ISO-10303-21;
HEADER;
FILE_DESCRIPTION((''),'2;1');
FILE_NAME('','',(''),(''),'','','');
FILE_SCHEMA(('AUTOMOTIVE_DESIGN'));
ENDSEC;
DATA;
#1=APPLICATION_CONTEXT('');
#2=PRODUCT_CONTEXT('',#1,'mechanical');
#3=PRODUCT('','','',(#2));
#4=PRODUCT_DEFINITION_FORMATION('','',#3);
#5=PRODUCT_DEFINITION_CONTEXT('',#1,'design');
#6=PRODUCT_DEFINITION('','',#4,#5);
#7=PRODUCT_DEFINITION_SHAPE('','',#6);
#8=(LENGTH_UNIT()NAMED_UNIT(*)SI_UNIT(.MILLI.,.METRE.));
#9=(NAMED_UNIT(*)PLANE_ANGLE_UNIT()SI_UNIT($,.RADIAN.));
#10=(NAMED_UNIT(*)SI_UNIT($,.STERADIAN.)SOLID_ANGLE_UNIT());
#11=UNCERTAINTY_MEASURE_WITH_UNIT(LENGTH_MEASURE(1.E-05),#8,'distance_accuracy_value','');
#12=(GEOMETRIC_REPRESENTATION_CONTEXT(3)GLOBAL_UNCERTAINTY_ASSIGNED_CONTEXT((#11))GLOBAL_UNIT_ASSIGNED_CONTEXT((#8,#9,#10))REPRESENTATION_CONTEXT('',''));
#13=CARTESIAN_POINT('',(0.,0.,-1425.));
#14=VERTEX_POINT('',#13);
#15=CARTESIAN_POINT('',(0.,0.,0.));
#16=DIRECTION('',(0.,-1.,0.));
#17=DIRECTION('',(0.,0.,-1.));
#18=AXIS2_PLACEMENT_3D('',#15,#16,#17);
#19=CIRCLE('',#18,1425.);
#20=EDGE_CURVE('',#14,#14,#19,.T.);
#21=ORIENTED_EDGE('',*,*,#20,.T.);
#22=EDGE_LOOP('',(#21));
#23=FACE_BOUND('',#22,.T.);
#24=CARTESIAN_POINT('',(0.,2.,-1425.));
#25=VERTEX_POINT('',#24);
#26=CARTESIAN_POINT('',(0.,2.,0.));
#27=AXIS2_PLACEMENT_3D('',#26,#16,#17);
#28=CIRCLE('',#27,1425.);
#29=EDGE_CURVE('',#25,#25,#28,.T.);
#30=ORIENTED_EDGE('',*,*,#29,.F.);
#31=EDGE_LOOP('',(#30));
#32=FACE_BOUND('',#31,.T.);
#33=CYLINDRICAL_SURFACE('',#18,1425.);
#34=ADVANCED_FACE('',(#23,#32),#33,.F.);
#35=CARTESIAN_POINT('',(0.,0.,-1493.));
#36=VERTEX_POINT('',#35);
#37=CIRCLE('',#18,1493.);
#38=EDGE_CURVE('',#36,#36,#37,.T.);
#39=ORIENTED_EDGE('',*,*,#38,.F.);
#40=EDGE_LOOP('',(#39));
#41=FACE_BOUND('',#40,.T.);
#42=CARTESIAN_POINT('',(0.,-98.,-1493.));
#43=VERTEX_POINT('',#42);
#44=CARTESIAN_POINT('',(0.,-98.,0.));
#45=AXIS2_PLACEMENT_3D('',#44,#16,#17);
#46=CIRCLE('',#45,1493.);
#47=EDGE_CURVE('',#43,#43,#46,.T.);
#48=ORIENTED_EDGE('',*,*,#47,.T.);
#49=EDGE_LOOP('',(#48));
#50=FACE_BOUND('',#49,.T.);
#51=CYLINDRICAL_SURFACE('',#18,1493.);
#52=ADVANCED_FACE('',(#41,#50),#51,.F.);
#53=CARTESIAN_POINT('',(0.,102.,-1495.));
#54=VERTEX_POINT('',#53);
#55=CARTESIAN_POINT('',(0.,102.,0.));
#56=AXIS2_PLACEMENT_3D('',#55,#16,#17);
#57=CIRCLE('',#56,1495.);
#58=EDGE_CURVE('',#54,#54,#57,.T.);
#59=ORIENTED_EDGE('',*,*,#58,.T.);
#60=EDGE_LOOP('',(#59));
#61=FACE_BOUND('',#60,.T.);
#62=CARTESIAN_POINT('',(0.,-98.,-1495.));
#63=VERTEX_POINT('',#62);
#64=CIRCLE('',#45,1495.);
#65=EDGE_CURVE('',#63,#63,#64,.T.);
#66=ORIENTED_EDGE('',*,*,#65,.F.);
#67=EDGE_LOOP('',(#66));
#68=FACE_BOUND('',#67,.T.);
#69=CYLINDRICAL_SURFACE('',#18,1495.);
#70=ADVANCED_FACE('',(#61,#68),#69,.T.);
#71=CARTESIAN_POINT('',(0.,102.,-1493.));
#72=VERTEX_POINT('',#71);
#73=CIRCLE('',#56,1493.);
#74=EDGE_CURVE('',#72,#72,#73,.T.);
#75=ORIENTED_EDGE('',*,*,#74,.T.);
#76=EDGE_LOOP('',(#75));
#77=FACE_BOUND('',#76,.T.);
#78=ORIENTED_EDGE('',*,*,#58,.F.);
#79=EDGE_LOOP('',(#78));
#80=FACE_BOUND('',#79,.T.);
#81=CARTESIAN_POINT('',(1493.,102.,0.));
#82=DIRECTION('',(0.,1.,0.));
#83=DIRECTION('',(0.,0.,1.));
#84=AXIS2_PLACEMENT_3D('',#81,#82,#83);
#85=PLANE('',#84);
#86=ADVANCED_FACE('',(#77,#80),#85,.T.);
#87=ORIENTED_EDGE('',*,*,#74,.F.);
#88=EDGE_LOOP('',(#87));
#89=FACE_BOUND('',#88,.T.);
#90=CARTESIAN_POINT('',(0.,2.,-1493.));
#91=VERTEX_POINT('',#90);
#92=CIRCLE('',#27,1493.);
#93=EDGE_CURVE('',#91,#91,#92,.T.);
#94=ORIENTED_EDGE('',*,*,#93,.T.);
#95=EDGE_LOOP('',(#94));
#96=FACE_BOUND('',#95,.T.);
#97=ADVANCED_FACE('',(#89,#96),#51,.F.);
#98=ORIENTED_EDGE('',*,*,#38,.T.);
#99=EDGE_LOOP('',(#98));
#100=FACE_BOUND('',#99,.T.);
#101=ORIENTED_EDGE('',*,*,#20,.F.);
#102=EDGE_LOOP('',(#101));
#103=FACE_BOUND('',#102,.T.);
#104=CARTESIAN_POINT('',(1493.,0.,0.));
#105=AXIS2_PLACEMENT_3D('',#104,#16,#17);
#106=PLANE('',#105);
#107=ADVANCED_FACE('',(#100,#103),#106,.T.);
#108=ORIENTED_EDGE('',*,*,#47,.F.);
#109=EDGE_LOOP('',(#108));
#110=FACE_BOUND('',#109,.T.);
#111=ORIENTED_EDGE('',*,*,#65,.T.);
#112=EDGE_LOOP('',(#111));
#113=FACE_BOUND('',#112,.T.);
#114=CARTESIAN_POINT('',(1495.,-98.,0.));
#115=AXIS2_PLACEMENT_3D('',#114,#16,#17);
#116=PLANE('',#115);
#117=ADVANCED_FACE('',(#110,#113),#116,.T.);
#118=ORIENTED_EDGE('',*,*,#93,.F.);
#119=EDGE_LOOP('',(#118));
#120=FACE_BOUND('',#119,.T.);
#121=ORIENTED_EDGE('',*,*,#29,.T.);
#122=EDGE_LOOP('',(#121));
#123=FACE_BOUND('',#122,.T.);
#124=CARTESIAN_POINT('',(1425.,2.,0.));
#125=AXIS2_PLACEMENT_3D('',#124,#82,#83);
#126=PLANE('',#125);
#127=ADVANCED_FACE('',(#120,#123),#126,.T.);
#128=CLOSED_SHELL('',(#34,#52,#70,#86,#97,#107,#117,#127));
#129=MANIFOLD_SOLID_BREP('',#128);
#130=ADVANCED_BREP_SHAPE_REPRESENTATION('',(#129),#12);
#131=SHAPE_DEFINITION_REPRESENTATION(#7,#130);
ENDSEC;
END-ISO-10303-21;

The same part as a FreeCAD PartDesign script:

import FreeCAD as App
import Part
import Sketcher
Q = App.Units.Quantity

doc = App.newDocument("Part")
body = doc.addObject("PartDesign::Body", "Body")

# Sketch on XY plane
sketch1 = body.newObject("Sketcher::SketchObject", "Sketch")
sketch1.AttachmentSupport = (doc.getObject("XY_Plane"), [""])
sketch1.MapMode = "FlatFace"
sketch1.addGeometry(Part.LineSegment(App.Vector(1495, 102, 0), App.Vector(1493, 102, 0)), False)
sketch1.addGeometry(Part.LineSegment(App.Vector(1493, 102, 0), App.Vector(1493, 2, 0)), False)
sketch1.addGeometry(Part.LineSegment(App.Vector(1493, 2, 0), App.Vector(1425, 2, 0)), False)
sketch1.addGeometry(Part.LineSegment(App.Vector(1425, 2, 0), App.Vector(1425, 0, 0)), False)
sketch1.addGeometry(Part.LineSegment(App.Vector(1425, 0, 0), App.Vector(1493, 0, 0)), False)
sketch1.addGeometry(Part.LineSegment(App.Vector(1493, 0, 0), App.Vector(1493, -98, 0)), False)
sketch1.addGeometry(Part.LineSegment(App.Vector(1493, -98, 0), App.Vector(1495, -98, 0)), False)
sketch1.addGeometry(Part.LineSegment(App.Vector(1495, -98, 0), App.Vector(1495, 102, 0)), False)
sketch1.addConstraint(Sketcher.Constraint("Coincident", 0, 2, 1, 1))
sketch1.addConstraint(Sketcher.Constraint("Coincident", 1, 2, 2, 1))
sketch1.addConstraint(Sketcher.Constraint("Coincident", 2, 2, 3, 1))
sketch1.addConstraint(Sketcher.Constraint("Coincident", 3, 2, 4, 1))
sketch1.addConstraint(Sketcher.Constraint("Coincident", 4, 2, 5, 1))
sketch1.addConstraint(Sketcher.Constraint("Coincident", 5, 2, 6, 1))
sketch1.addConstraint(Sketcher.Constraint("Coincident", 6, 2, 7, 1))
sketch1.addConstraint(Sketcher.Constraint("Coincident", 7, 2, 0, 1))
sketch1.addConstraint(Sketcher.Constraint("Horizontal", 0))
sketch1.addConstraint(Sketcher.Constraint("Vertical", 1))
sketch1.addConstraint(Sketcher.Constraint("Horizontal", 2))
sketch1.addConstraint(Sketcher.Constraint("Vertical", 3))
sketch1.addConstraint(Sketcher.Constraint("Horizontal", 4))
sketch1.addConstraint(Sketcher.Constraint("Vertical", 5))
sketch1.addConstraint(Sketcher.Constraint("Horizontal", 6))
sketch1.addConstraint(Sketcher.Constraint("Vertical", 7))
sketch1.addConstraint(Sketcher.Constraint("PointOnObject", 3, 2, -1))
sketch1.addConstraint(Sketcher.Constraint("Vertical", 1, 2, 4, 2))
sketch1.addConstraint(Sketcher.Constraint("Equal", 6, 3))
sketch1.addConstraint(Sketcher.Constraint("DistanceX", 0, 2, 0, 1, Q("2 mm")))
sketch1.addConstraint(Sketcher.Constraint("DistanceX", 2, 2, 2, 1, Q("68 mm")))
sketch1.addConstraint(Sketcher.Constraint("DistanceY", 1, 2, 1, 1, Q("100 mm")))
sketch1.addConstraint(Sketcher.Constraint("DistanceY", 5, 2, 5, 1, Q("98 mm")))
sketch1.addConstraint(Sketcher.Constraint("DistanceX", -1, 1, 0, 2, Q("1493 mm")))
revolution = body.newObject("PartDesign::Revolution", "Revolution")
revolution.Profile = sketch1
revolution.ReferenceAxis = (sketch1, ["V_Axis"])
revolution.Angle = 360

doc.recompute()
